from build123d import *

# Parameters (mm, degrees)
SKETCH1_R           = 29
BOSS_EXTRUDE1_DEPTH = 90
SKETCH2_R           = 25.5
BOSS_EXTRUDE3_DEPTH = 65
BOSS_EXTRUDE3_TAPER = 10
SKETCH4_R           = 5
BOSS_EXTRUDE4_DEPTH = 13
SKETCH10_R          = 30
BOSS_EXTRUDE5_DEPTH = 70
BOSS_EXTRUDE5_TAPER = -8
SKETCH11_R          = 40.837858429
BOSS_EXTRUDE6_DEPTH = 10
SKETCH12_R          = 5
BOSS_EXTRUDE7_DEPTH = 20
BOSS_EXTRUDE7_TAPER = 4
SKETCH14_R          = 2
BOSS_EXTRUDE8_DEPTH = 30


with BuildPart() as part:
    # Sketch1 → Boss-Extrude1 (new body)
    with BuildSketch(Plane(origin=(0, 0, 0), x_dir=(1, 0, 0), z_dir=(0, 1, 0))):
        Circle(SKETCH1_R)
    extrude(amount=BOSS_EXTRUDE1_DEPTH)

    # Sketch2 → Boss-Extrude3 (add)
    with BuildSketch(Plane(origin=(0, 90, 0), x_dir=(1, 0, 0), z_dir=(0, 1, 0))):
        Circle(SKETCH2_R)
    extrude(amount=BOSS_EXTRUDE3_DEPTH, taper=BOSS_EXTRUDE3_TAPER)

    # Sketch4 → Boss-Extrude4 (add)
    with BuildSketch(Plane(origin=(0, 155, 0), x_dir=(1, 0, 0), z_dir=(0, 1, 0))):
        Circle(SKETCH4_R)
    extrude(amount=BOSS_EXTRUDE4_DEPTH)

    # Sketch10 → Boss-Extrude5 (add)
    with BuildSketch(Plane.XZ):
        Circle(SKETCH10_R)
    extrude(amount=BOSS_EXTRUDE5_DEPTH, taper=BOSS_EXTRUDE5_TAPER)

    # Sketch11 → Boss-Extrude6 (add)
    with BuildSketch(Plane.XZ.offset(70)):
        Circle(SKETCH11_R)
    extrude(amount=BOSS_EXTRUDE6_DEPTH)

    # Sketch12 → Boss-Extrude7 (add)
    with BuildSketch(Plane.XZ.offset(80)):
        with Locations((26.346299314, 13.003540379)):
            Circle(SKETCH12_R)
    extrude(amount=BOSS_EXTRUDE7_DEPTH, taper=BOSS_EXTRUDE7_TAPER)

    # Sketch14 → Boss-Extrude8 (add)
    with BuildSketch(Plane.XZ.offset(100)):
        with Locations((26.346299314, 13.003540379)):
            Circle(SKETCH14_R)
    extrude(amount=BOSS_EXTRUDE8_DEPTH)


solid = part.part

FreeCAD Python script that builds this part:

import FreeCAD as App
import Part
import Sketcher

V = App.Vector

doc = App.newDocument("Part")
body = doc.addObject("PartDesign::Body", "Body")

# Sketch on XZ plane
sketch1 = body.newObject("Sketcher::SketchObject", "Sketch")
sketch1.AttachmentSupport = (doc.getObject("XZ_Plane"), [""])
sketch1.MapMode = "FlatFace"
sketch1.addGeometry(Part.Circle(V(0, 0, 0), V(0, 0, 1), 29), False)
sketch1.addConstraint([
    Sketcher.Constraint("Coincident", 0, 3, -1, 1),
    Sketcher.Constraint("Diameter", 0, 58.0),
])
pad1 = body.newObject("PartDesign::Pad", "Pad")
pad1.Profile = sketch1
pad1.Length = 90
pad1.Reversed = True

# Sketch on XZ plane
sketch2 = body.newObject("Sketcher::SketchObject", "Sketch001")
sketch2.AttachmentSupport = (doc.getObject("XZ_Plane"), [""])
sketch2.MapMode = "FlatFace"
sketch2.AttachmentOffset = App.Placement(V(0, 0, -90), App.Rotation())
sketch2.addGeometry(Part.Circle(V(0, 0, 0), V(0, 0, 1), 26), False)
sketch2.addConstraint([
    Sketcher.Constraint("Coincident", 0, 3, -1, 1),
    Sketcher.Constraint("Diameter", 0, 51.0),
])
pad2 = body.newObject("PartDesign::Pad", "Pad001")
pad2.Profile = sketch2
pad2.Length = 65
pad2.Reversed = True
pad2.TaperAngle = -10

# Sketch on XZ plane
sketch3 = body.newObject("Sketcher::SketchObject", "Sketch002")
sketch3.AttachmentSupport = (doc.getObject("XZ_Plane"), [""])
sketch3.MapMode = "FlatFace"
sketch3.AttachmentOffset = App.Placement(V(0, 0, -155), App.Rotation())
sketch3.addGeometry(Part.Circle(V(0, 0, 0), V(0, 0, 1), 5), False)
sketch3.addConstraint([
    Sketcher.Constraint("Coincident", 0, 3, -1, 1),
    Sketcher.Constraint("Diameter", 0, 10.0),
])
pad3 = body.newObject("PartDesign::Pad", "Pad002")
pad3.Profile = sketch3
pad3.Length = 13
pad3.Reversed = True

# Sketch on XZ plane
sketch4 = body.newObject("Sketcher::SketchObject", "Sketch003")
sketch4.AttachmentSupport = (doc.getObject("XZ_Plane"), [""])
sketch4.MapMode = "FlatFace"
sketch4.addGeometry(Part.Circle(V(0, 0, 0), V(0, 0, 1), 30), False)
sketch4.addConstraint([
    Sketcher.Constraint("Coincident", 0, 3, -1, 1),
    Sketcher.Constraint("Diameter", 0, 60.0),
])
pad4 = body.newObject("PartDesign::Pad", "Pad003")
pad4.Profile = sketch4
pad4.Length = 70
pad4.TaperAngle = 8

# Sketch on XZ plane
sketch5 = body.newObject("Sketcher::SketchObject", "Sketch004")
sketch5.AttachmentSupport = (doc.getObject("XZ_Plane"), [""])
sketch5.MapMode = "FlatFace"
sketch5.AttachmentOffset = App.Placement(V(0, 0, 70), App.Rotation())
sketch5.addGeometry(Part.Circle(V(0, 0, 0), V(0, 0, 1), 41), False)
sketch5.addConstraint([
    Sketcher.Constraint("Coincident", 0, 3, -1, 1),
    Sketcher.Constraint("Diameter", 0, 81.675717),
])
pad5 = body.newObject("PartDesign::Pad", "Pad004")
pad5.Profile = sketch5
pad5.Length = 10

# Sketch on XZ plane
sketch6 = body.newObject("Sketcher::SketchObject", "Sketch005")
sketch6.AttachmentSupport = (doc.getObject("XZ_Plane"), [""])
sketch6.MapMode = "FlatFace"
sketch6.AttachmentOffset = App.Placement(V(0, 0, 80), App.Rotation())
sketch6.addGeometry(Part.Circle(V(26, 13, 0), V(0, 0, 1), 5), False)
sketch6.addConstraint([
    Sketcher.Constraint("Diameter", 0, 10.0),
    Sketcher.Constraint("DistanceX", -1, 1, 0, 3, 26.346299),
    Sketcher.Constraint("DistanceY", -1, 1, 0, 3, 13.00354),
])
pad6 = body.newObject("PartDesign::Pad", "Pad005")
pad6.Profile = sketch6
pad6.Length = 20
pad6.TaperAngle = -4

# Sketch on XZ plane
sketch7 = body.newObject("Sketcher::SketchObject", "Sketch006")
sketch7.AttachmentSupport = (doc.getObject("XZ_Plane"), [""])
sketch7.MapMode = "FlatFace"
sketch7.AttachmentOffset = App.Placement(V(0, 0, 100), App.Rotation())
sketch7.addGeometry(Part.Circle(V(26.3, 13, 0), V(0, 0, 1), 2), False)
sketch7.addConstraint([
    Sketcher.Constraint("Diameter", 0, 4.0),
    Sketcher.Constraint("DistanceX", -1, 1, 0, 3, 26.346299),
    Sketcher.Constraint("DistanceY", -1, 1, 0, 3, 13.00354),
])
pad7 = body.newObject("PartDesign::Pad", "Pad006")
pad7.Profile = sketch7
pad7.Length = 30

doc.recompute()
